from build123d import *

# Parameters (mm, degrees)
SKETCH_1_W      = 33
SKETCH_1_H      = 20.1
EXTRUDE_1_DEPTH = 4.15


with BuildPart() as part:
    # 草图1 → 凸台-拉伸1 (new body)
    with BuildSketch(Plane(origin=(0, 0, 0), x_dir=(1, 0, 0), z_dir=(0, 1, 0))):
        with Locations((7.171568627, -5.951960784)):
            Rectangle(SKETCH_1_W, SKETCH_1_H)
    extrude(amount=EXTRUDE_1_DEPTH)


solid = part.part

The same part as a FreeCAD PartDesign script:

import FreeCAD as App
import Part
import Sketcher

V = App.Vector

doc = App.newDocument("Part")
body = doc.addObject("PartDesign::Body", "Body")

# Sketch on XZ plane
sketch1 = doc.addObject("Sketcher::SketchObject", "Sketch")
body.addObject(sketch1)
sketch1.AttachmentSupport = (doc.XZ_Plane, [""])
sketch1.MapMode = "FlatFace"
sketch1.addGeometry([
    Part.LineSegment(V(-9, -4, 0), V(-9, 16, 0)),
    Part.LineSegment(V(-9, 16, 0), V(24, 16, 0)),
    Part.LineSegment(V(24, 16, 0), V(24, -4, 0)),
    Part.LineSegment(V(24, -4, 0), V(-9, -4, 0)),
], False)
sketch1.addConstraint([
    Sketcher.Constraint("Coincident", 0, 2, 1, 1),
    Sketcher.Constraint("Coincident", 1, 2, 2, 1),
    Sketcher.Constraint("Coincident", 2, 2, 3, 1),
    Sketcher.Constraint("Coincident", 3, 2, 0, 1),
    Sketcher.Constraint("Vertical", 0),
    Sketcher.Constraint("Horizontal", 1),
    Sketcher.Constraint("Vertical", 2),
    Sketcher.Constraint("Horizontal", 3),
    Sketcher.Constraint("DistanceX", 1, 1, 1, 2, 33.0),
    Sketcher.Constraint("DistanceY", 0, 1, 0, 2, 20.1),
    Sketcher.Constraint("DistanceX", 0, 2, -1, 1, 9.328431),
    Sketcher.Constraint("DistanceY", -1, 1, 0, 2, 16.001961),
])
pad1 = doc.addObject("PartDesign::Pad", "Pad")
body.addObject(pad1)
pad1.Profile = sketch1
pad1.Length = 4.15
pad1.Reversed = True

doc.recompute()
